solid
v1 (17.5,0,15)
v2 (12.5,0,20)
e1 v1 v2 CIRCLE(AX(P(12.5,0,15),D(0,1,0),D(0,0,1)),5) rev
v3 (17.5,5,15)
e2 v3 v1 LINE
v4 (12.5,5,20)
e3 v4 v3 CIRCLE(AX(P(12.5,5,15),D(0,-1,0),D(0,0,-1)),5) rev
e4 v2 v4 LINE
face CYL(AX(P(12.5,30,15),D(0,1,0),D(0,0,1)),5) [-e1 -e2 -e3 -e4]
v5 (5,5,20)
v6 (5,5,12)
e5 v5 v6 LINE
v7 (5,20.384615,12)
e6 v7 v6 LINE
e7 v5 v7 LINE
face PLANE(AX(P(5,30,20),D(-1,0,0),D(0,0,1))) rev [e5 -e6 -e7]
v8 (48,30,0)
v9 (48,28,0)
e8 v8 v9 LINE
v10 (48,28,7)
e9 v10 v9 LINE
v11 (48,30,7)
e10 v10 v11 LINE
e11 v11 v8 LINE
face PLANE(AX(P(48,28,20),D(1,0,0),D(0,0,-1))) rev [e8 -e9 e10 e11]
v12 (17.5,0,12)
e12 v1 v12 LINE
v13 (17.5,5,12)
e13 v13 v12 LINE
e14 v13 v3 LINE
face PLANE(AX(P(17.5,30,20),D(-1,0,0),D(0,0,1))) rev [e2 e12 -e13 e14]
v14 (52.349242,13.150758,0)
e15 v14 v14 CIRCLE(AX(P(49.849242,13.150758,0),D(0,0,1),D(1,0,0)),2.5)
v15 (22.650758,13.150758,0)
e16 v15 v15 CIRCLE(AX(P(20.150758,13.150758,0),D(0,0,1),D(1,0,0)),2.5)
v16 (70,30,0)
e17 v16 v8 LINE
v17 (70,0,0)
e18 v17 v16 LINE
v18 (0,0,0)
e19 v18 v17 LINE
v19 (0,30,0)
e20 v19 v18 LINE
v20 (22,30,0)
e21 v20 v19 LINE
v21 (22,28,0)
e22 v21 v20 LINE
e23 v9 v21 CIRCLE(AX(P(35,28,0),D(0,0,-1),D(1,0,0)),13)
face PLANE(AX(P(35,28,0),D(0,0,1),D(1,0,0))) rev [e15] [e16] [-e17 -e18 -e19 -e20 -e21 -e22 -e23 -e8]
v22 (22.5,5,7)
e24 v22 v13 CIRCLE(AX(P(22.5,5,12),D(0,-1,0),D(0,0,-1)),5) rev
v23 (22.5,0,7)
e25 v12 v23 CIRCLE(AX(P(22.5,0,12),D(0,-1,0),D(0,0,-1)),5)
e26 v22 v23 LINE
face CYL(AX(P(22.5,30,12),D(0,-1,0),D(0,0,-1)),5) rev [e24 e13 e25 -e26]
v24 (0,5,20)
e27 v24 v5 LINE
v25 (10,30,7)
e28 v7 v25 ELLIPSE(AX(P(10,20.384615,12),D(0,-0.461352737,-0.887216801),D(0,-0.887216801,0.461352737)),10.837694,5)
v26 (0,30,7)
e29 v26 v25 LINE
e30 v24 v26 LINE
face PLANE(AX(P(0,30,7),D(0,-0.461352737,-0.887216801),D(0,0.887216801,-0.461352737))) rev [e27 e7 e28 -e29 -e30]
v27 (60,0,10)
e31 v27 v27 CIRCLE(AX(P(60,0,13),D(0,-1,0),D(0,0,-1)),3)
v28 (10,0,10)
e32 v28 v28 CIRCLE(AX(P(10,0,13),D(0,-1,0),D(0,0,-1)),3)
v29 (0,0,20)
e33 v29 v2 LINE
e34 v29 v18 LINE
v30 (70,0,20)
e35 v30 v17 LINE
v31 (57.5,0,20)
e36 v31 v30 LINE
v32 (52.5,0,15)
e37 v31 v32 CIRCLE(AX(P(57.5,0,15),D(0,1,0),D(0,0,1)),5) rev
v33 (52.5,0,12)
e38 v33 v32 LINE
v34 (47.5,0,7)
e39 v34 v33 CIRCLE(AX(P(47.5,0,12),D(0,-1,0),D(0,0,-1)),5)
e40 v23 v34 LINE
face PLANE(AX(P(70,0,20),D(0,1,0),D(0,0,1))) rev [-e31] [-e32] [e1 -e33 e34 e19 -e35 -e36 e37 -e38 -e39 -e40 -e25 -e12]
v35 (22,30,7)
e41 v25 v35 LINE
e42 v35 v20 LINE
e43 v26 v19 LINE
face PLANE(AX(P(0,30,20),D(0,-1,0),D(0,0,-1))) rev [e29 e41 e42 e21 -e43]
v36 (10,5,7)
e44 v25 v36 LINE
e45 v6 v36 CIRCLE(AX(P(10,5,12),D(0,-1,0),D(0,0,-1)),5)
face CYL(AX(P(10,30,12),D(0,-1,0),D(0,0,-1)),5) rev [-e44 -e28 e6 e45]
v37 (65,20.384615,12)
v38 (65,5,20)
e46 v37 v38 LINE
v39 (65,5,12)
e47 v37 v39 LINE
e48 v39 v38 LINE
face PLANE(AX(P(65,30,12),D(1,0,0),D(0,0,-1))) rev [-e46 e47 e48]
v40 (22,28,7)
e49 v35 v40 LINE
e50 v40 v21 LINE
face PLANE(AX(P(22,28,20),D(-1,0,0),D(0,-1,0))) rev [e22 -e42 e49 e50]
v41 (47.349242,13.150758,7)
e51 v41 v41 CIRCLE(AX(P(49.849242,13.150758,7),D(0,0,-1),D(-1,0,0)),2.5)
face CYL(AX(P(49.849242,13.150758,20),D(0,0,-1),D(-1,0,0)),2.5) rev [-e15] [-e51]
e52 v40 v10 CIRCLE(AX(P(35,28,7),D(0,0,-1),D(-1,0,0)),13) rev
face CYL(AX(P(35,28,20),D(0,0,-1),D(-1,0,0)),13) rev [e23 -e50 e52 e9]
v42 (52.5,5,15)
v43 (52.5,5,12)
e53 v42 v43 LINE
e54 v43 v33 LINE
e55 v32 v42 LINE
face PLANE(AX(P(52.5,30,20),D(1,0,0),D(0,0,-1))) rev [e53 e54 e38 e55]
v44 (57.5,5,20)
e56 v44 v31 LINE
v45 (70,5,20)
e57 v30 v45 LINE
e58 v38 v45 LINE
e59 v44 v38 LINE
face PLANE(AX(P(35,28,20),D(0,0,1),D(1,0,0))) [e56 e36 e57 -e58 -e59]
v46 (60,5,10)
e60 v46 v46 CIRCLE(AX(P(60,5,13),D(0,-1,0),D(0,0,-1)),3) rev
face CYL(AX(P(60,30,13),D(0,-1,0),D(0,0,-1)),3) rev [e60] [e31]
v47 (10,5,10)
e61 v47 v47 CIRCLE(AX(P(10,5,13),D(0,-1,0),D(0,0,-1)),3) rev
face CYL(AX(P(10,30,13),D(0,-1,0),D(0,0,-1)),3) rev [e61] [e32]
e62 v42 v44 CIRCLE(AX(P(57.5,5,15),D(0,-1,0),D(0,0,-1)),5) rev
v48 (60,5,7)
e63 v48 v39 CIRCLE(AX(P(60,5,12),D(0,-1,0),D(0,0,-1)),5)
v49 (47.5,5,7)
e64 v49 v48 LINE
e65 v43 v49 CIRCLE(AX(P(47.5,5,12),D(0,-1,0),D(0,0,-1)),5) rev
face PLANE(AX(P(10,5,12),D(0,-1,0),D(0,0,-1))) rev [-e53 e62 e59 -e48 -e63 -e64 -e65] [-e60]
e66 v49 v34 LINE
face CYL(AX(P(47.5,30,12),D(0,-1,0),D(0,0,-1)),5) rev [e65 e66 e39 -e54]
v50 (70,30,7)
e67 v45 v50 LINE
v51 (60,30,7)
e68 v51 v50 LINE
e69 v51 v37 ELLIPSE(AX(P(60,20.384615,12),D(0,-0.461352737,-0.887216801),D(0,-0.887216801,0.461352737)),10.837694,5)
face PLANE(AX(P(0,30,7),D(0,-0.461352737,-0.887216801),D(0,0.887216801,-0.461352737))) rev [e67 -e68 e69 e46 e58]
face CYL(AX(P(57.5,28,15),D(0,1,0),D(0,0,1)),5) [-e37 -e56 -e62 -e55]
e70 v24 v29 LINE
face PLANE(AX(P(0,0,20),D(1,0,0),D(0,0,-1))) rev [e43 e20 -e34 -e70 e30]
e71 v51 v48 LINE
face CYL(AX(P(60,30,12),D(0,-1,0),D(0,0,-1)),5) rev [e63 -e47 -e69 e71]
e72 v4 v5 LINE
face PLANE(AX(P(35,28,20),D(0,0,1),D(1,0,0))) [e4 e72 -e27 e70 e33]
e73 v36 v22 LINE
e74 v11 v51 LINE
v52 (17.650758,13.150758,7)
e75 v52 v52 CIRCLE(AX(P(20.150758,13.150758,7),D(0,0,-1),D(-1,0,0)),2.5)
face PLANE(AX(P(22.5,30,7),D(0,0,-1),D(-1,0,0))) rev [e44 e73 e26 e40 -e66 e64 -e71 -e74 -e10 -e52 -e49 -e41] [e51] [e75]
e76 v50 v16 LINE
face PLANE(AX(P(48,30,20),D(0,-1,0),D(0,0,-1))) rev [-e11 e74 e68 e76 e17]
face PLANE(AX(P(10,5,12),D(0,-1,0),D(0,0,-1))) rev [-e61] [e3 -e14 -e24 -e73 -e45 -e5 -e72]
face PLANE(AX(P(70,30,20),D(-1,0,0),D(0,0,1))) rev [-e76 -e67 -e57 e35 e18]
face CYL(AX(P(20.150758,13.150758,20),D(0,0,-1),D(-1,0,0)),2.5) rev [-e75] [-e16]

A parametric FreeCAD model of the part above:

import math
import FreeCAD as App
import Part
import Sketcher
from FreeCAD import Vector
Q = App.Units.Quantity


def edges_at(feature, points):
    """Names of the edges that pass closest to the given points."""
    edges = feature.Shape.Edges
    near = lambda p: min(range(len(edges)), key=lambda i: edges[i].distToShape(Part.Vertex(*p))[0])
    return sorted({f"Edge{near(p) + 1}" for p in points})

doc = App.newDocument("Part")
body = doc.addObject("PartDesign::Body", "Body")

sketch1 = body.newObject("Sketcher::SketchObject", "Sketch")
sketch1.AttachmentSupport = (doc.getObject("XY_Plane"), [""])
sketch1.MapMode = "FlatFace"
sketch1.addGeometry(Part.LineSegment(Vector(0, 30, 0), Vector(0, 0, 0)), False)
sketch1.addGeometry(Part.LineSegment(Vector(0, 0, 0), Vector(70, 0, 0)), False)
sketch1.addGeometry(Part.LineSegment(Vector(70, 0, 0), Vector(70, 30, 0)), False)
sketch1.addGeometry(Part.LineSegment(Vector(70, 30, 0), Vector(48, 30, 0)), False)
sketch1.addGeometry(Part.LineSegment(Vector(48, 30, 0), Vector(48, 28, 0)), False)
sketch1.addGeometry(Part.ArcOfCircle(Part.Circle(Vector(35, 28, 0), Vector(0, 0, 1), 13), math.radians(180), math.radians(360)), False)
sketch1.addGeometry(Part.LineSegment(Vector(22, 28, 0), Vector(22, 30, 0)), False)
sketch1.addGeometry(Part.LineSegment(Vector(22, 30, 0), Vector(0, 30, 0)), False)
sketch1.addGeometry(Part.Circle(Vector(49.8, 13.2, 0), Vector(0, 0, 1), 2.5), False)
sketch1.addGeometry(Part.Circle(Vector(20.2, 13.2, 0), Vector(0, 0, 1), 2.5), False)
sketch1.addConstraint(Sketcher.Constraint("Coincident", 0, 2, 1, 1))
sketch1.addConstraint(Sketcher.Constraint("Coincident", 1, 2, 2, 1))
sketch1.addConstraint(Sketcher.Constraint("Coincident", 2, 2, 3, 1))
sketch1.addConstraint(Sketcher.Constraint("Coincident", 3, 2, 4, 1))
sketch1.addConstraint(Sketcher.Constraint("Tangent", 4, 2, 5, 2))
sketch1.addConstraint(Sketcher.Constraint("Tangent", 5, 1, 6, 1))
sketch1.addConstraint(Sketcher.Constraint("Coincident", 6, 2, 7, 1))
sketch1.addConstraint(Sketcher.Constraint("Coincident", 7, 2, 0, 1))
sketch1.addConstraint(Sketcher.Constraint("Vertical", 0))
sketch1.addConstraint(Sketcher.Constraint("Horizontal", 1))
sketch1.addConstraint(Sketcher.Constraint("Vertical", 2))
sketch1.addConstraint(Sketcher.Constraint("Horizontal", 3))
sketch1.addConstraint(Sketcher.Constraint("Vertical", 4))
sketch1.addConstraint(Sketcher.Constraint("Vertical", 6))
sketch1.addConstraint(Sketcher.Constraint("Horizontal", 7))
sketch1.addConstraint(Sketcher.Constraint("Coincident", 0, 2, -1, 1))
sketch1.addConstraint(Sketcher.Constraint("Equal", 8, 9))
sketch1.addConstraint(Sketcher.Constraint("Horizontal", 8, 3, 9, 3))
sketch1.addConstraint(Sketcher.Constraint("Horizontal", 3, 2, 6, 2))
sketch1.addConstraint(Sketcher.Constraint("Equal", 3, 7))
sketch1.addConstraint(Sketcher.Constraint("Diameter", 8, Q("5 mm")))
sketch1.addConstraint(Sketcher.Constraint("Radius", 5, Q("13 mm")))
sketch1.addConstraint(Sketcher.Constraint("DistanceX", 1, 1, 1, 2, Q("70 mm")))
sketch1.addConstraint(Sketcher.Constraint("DistanceY", 0, 2, 0, 1, Q("30 mm")))
sketch1.addConstraint(Sketcher.Constraint("DistanceY", 4, 2, 4, 1, Q("2 mm")))
sketch1.addConstraint(Sketcher.Constraint("DistanceX", -1, 1, 8, 3, Q("49.849242 mm")))
sketch1.addConstraint(Sketcher.Constraint("DistanceY", -1, 1, 8, 3, Q("13.150758 mm")))
sketch1.addConstraint(Sketcher.Constraint("DistanceX", -1, 1, 9, 3, Q("20.150758 mm")))
pad1 = body.newObject("PartDesign::Pad", "Pad")
pad1.Profile = sketch1
pad1.Length = 20

sketch2 = body.newObject("Sketcher::SketchObject", "Sketch001")
sketch2.AttachmentSupport = (doc.getObject("YZ_Plane"), [""])
sketch2.MapMode = "FlatFace"
sketch2.AttachmentOffset = App.Placement(Vector(0, 0, 70), App.Rotation())
sketch2.addGeometry(Part.LineSegment(Vector(5, 20, 0), Vector(30, 7, 0)), False)
sketch2.addGeometry(Part.LineSegment(Vector(30, 7, 0), Vector(30, 20, 0)), False)
sketch2.addGeometry(Part.LineSegment(Vector(30, 20, 0), Vector(5, 20, 0)), False)
sketch2.addConstraint(Sketcher.Constraint("Coincident", 0, 2, 1, 1))
sketch2.addConstraint(Sketcher.Constraint("Coincident", 1, 2, 2, 1))
sketch2.addConstraint(Sketcher.Constraint("Coincident", 2, 2, 0, 1))
sketch2.addConstraint(Sketcher.Constraint("Vertical", 1))
sketch2.addConstraint(Sketcher.Constraint("Horizontal", 2))
sketch2.addConstraint(Sketcher.Constraint("DistanceX", 2, 2, 2, 1, Q("25 mm")))
sketch2.addConstraint(Sketcher.Constraint("DistanceY", 1, 1, 1, 2, Q("13 mm")))
sketch2.addConstraint(Sketcher.Constraint("DistanceX", -1, 1, 0, 2, Q("30 mm")))
sketch2.addConstraint(Sketcher.Constraint("DistanceY", -1, 1, 0, 2, Q("7 mm")))
pocket1 = body.newObject("PartDesign::Pocket", "Pocket")
pocket1.Profile = sketch2
pocket1.Type = "ThroughAll"

sketch3 = body.newObject("Sketcher::SketchObject", "Sketch002")
sketch3.AttachmentSupport = (doc.getObject("XZ_Plane"), [""])
sketch3.MapMode = "FlatFace"
sketch3.addGeometry(Part.Circle(Vector(10, 13, 0), Vector(0, 0, 1), 3), False)
sketch3.addGeometry(Part.Circle(Vector(60, 13, 0), Vector(0, 0, 1), 3), False)
sketch3.addGeometry(Part.LineSegment(Vector(52.5, 20, 0), Vector(17.5, 20, 0)), False)
sketch3.addGeometry(Part.LineSegment(Vector(17.5, 20, 0), Vector(17.5, 12, 0)), False)
sketch3.addGeometry(Part.ArcOfCircle(Part.Circle(Vector(22.5, 12, 0), Vector(0, 0, 1), 5), math.radians(180), math.radians(270)), False)
sketch3.addGeometry(Part.LineSegment(Vector(22.5, 7, 0), Vector(47.5, 7, 0)), False)
sketch3.addGeometry(Part.ArcOfCircle(Part.Circle(Vector(47.5, 12, 0), Vector(0, 0, 1), 5), math.radians(-90), math.radians(0)), False)
sketch3.addGeometry(Part.LineSegment(Vector(52.5, 12, 0), Vector(52.5, 20, 0)), False)
sketch3.addConstraint(Sketcher.Constraint("Coincident", 2, 2, 3, 1))
sketch3.addConstraint(Sketcher.Constraint("Tangent", 3, 2, 4, 1))
sketch3.addConstraint(Sketcher.Constraint("Tangent", 4, 2, 5, 1))
sketch3.addConstraint(Sketcher.Constraint("Tangent", 5, 2, 6, 1))
sketch3.addConstraint(Sketcher.Constraint("Tangent", 6, 2, 7, 1))
sketch3.addConstraint(Sketcher.Constraint("Coincident", 7, 2, 2, 1))
sketch3.addConstraint(Sketcher.Constraint("Horizontal", 2))
sketch3.addConstraint(Sketcher.Constraint("Vertical", 3))
sketch3.addConstraint(Sketcher.Constraint("Horizontal", 5))
sketch3.addConstraint(Sketcher.Constraint("Vertical", 7))
sketch3.addConstraint(Sketcher.Constraint("Equal", 0, 1))
sketch3.addConstraint(Sketcher.Constraint("Equal", 4, 6))
sketch3.addConstraint(Sketcher.Constraint("Horizontal", 0, 3, 1, 3))
sketch3.addConstraint(Sketcher.Constraint("Diameter", 0, Q("6 mm")))
sketch3.addConstraint(Sketcher.Constraint("Radius", 4, Q("5 mm")))
sketch3.addConstraint(Sketcher.Constraint("DistanceX", 2, 2, 2, 1, Q("35 mm")))
sketch3.addConstraint(Sketcher.Constraint("DistanceY", 3, 2, 3, 1, Q("8 mm")))
sketch3.addConstraint(Sketcher.Constraint("DistanceX", -1, 1, 0, 3, Q("10 mm")))
sketch3.addConstraint(Sketcher.Constraint("DistanceY", -1, 1, 0, 3, Q("13 mm")))
sketch3.addConstraint(Sketcher.Constraint("DistanceX", -1, 1, 1, 3, Q("60 mm")))
sketch3.addConstraint(Sketcher.Constraint("DistanceY", -1, 1, 4, 3, Q("12 mm")))
sketch3.addConstraint(Sketcher.Constraint("DistanceX", -1, 1, 4, 3, Q("22.5 mm")))
pocket2 = body.newObject("PartDesign::Pocket", "Pocket001")
pocket2.Profile = sketch3
pocket2.Type = "ThroughAll"

sketch4 = body.newObject("Sketcher::SketchObject", "Sketch003")
sketch4.AttachmentSupport = (doc.getObject("XZ_Plane"), [""])
sketch4.MapMode = "FlatFace"
sketch4.AttachmentOffset = App.Placement(Vector(0, 0, -5), App.Rotation())
sketch4.addGeometry(Part.LineSegment(Vector(65, 12, 0), Vector(65, 20, 0)), False)
sketch4.addGeometry(Part.LineSegment(Vector(65, 20, 0), Vector(5, 20, 0)), False)
sketch4.addGeometry(Part.LineSegment(Vector(5, 20, 0), Vector(5, 12, 0)), False)
sketch4.addGeometry(Part.ArcOfCircle(Part.Circle(Vector(10, 12, 0), Vector(0, 0, 1), 5), math.radians(180), math.radians(270)), False)
sketch4.addGeometry(Part.LineSegment(Vector(10, 7, 0), Vector(60, 7, 0)), False)
sketch4.addGeometry(Part.ArcOfCircle(Part.Circle(Vector(60, 12, 0), Vector(0, 0, 1), 5), math.radians(-90), math.radians(0)), False)
sketch4.addConstraint(Sketcher.Constraint("Coincident", 0, 2, 1, 1))
sketch4.addConstraint(Sketcher.Constraint("Coincident", 1, 2, 2, 1))
sketch4.addConstraint(Sketcher.Constraint("Tangent", 2, 2, 3, 1))
sketch4.addConstraint(Sketcher.Constraint("Tangent", 3, 2, 4, 1))
sketch4.addConstraint(Sketcher.Constraint("Tangent", 4, 2, 5, 1))
sketch4.addConstraint(Sketcher.Constraint("Tangent", 5, 2, 0, 1))
sketch4.addConstraint(Sketcher.Constraint("Vertical", 0))
sketch4.addConstraint(Sketcher.Constraint("Horizontal", 1))
sketch4.addConstraint(Sketcher.Constraint("Vertical", 2))
sketch4.addConstraint(Sketcher.Constraint("Horizontal", 4))
sketch4.addConstraint(Sketcher.Constraint("Equal", 3, 5))
sketch4.addConstraint(Sketcher.Constraint("Radius", 3, Q("5 mm")))
sketch4.addConstraint(Sketcher.Constraint("DistanceX", 1, 2, 1, 1, Q("60 mm")))
sketch4.addConstraint(Sketcher.Constraint("DistanceY", 0, 1, 0, 2, Q("8 mm")))
sketch4.addConstraint(Sketcher.Constraint("DistanceX", -1, 1, 3, 3, Q("10 mm")))
sketch4.addConstraint(Sketcher.Constraint("DistanceY", -1, 1, 3, 3, Q("12 mm")))
pocket3 = body.newObject("PartDesign::Pocket", "Pocket002")
pocket3.Profile = sketch4
pocket3.Type = "ThroughAll"
doc.recompute()

fillet = body.newObject("PartDesign::Fillet", "Fillet")
fillet.Base = (pocket3, edges_at(pocket3, [(17.5, 2.5, 20), (52.5, 2.5, 20)]))
fillet.Radius = 5

doc.recompute()
